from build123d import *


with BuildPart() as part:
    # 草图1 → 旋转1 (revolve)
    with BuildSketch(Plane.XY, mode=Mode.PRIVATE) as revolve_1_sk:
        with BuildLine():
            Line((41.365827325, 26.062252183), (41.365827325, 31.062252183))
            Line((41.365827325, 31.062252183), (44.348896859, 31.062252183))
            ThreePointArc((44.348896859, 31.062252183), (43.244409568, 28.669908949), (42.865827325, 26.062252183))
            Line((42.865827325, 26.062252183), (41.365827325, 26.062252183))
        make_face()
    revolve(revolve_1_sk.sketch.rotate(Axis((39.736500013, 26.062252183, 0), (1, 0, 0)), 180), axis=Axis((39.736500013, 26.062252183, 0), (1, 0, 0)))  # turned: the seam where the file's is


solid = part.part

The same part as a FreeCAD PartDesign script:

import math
import FreeCAD as App
import Part
import Sketcher
Q = App.Units.Quantity

doc = App.newDocument("Part")
body = doc.addObject("PartDesign::Body", "Body")

# Sketch on XY plane
sketch1 = body.newObject("Sketcher::SketchObject", "Sketch")
sketch1.AttachmentSupport = (doc.getObject("XY_Plane"), [""])
sketch1.MapMode = "FlatFace"
sketch1.addGeometry(Part.LineSegment(App.Vector(41.4, 31.1, 0), App.Vector(41.4, 26.1, 0)), False)
sketch1.addGeometry(Part.LineSegment(App.Vector(41.4, 26.1, 0), App.Vector(42.9, 26.1, 0)), False)
sketch1.addGeometry(Part.ArcOfCircle(Part.Circle(App.Vector(52, 26.1, 0), App.Vector(0, 0, 1), 9.2), math.radians(147), math.radians(180)), False)
sketch1.addGeometry(Part.LineSegment(App.Vector(44.3, 31.1, 0), App.Vector(41.4, 31.1, 0)), False)
sketch1.addGeometry(Part.LineSegment(App.Vector(41.4, 26.1, 0), App.Vector(52, 26.1, 0)), True)  # axis
sketch1.addConstraint(Sketcher.Constraint("Coincident", 0, 2, 1, 1))
sketch1.addConstraint(Sketcher.Constraint("Coincident", 1, 2, 2, 2))
sketch1.addConstraint(Sketcher.Constraint("Coincident", 2, 1, 3, 1))
sketch1.addConstraint(Sketcher.Constraint("Coincident", 3, 2, 0, 1))
sketch1.addConstraint(Sketcher.Constraint("Vertical", 0))
sketch1.addConstraint(Sketcher.Constraint("Horizontal", 1))
sketch1.addConstraint(Sketcher.Constraint("Horizontal", 3))
sketch1.addConstraint(Sketcher.Constraint("Horizontal", 4))
sketch1.addConstraint(Sketcher.Constraint("Coincident", 4, 1, 0, 2))
sketch1.addConstraint(Sketcher.Constraint("Coincident", 4, 2, 2, 3))
sketch1.addConstraint(Sketcher.Constraint("DistanceY", 0, 2, 0, 1, Q("5 mm")))
sketch1.addConstraint(Sketcher.Constraint("Radius", 2, Q("9.17 mm")))
sketch1.addConstraint(Sketcher.Constraint("DistanceX", 1, 1, 1, 2, Q("1.5 mm")))
sketch1.addConstraint(Sketcher.Constraint("DistanceX", -1, 1, 2, 3, Q("52.035827 mm")))
sketch1.addConstraint(Sketcher.Constraint("DistanceY", -1, 1, 2, 3, Q("26.062252 mm")))
revolution = body.newObject("PartDesign::Revolution", "Revolution")
revolution.Profile = sketch1
revolution.ReferenceAxis = (sketch1, ["Axis0"])
revolution.Angle = 360

doc.recompute()
